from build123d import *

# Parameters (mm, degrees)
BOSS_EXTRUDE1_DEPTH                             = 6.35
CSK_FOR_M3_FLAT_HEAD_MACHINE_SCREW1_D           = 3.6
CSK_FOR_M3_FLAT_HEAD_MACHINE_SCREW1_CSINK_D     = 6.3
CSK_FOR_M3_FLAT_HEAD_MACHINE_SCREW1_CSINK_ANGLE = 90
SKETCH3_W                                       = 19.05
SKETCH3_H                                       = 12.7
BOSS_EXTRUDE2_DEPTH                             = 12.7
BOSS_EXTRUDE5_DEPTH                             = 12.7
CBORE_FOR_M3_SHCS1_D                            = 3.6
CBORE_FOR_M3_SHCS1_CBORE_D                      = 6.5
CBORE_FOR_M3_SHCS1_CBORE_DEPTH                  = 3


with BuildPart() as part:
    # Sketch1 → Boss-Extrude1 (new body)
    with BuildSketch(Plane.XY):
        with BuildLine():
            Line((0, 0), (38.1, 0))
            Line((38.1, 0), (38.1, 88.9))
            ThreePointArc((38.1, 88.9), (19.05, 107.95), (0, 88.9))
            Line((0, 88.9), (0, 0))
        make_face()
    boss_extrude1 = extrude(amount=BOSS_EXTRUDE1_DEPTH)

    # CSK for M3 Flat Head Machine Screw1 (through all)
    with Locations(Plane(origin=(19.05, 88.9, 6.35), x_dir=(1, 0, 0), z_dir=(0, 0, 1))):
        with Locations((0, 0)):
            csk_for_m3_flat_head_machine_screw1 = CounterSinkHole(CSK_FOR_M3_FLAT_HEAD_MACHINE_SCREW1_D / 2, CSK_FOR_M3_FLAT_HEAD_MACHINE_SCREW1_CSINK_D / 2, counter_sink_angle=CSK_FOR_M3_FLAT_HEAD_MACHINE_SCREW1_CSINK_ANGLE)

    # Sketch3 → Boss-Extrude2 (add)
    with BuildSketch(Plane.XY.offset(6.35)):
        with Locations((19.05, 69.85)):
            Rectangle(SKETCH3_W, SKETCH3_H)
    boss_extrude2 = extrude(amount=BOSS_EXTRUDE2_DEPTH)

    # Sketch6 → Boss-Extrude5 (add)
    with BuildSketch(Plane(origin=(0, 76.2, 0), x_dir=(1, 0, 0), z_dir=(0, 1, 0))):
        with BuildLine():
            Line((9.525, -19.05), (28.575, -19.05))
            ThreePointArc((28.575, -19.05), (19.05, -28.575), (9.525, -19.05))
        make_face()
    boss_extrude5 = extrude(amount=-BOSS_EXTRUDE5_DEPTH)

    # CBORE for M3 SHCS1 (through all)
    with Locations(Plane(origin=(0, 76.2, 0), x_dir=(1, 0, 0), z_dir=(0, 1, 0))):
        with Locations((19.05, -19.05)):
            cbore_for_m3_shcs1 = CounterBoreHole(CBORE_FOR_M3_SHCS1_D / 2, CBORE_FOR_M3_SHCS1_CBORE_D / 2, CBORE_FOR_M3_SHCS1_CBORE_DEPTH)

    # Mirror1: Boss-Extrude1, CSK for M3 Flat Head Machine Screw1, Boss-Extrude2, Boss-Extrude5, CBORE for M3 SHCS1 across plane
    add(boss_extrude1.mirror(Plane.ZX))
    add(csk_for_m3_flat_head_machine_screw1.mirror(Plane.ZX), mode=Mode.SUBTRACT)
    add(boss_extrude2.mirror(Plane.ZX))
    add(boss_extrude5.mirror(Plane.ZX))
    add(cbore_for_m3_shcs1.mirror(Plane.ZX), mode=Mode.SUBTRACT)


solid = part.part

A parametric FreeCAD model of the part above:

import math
import FreeCAD as App
import Part
import Sketcher

V = App.Vector
Q = App.Units.Quantity


def add_polygon(sketch, points):
    """Adds a closed chain of lines whose ends are joined by coincident constraints."""
    first, n = sketch.GeometryCount, len(points)
    for a, b in zip(points, points[1:] + points[:1]):
        sketch.addGeometry(Part.LineSegment(App.Vector(*a, 0), App.Vector(*b, 0)), False)
    for i in range(n):
        sketch.addConstraint(Sketcher.Constraint("Coincident", first + i, 2, first + (i + 1) % n, 1))

doc = App.newDocument("Part")
body = doc.addObject("PartDesign::Body", "Body")

sketch1 = body.newObject("Sketcher::SketchObject", "Sketch")
sketch1.AttachmentSupport = (doc.getObject("XY_Plane"), [""])
sketch1.MapMode = "FlatFace"
sketch1.addGeometry([
    Part.LineSegment(V(0, 0, 0), V(38.1, 0, 0)),
    Part.LineSegment(V(38.1, 0, 0), V(38.1, 88.9, 0)),
    Part.ArcOfCircle(Part.Circle(V(19.05, 88.9, 0), V(0, 0, 1), 19.05), math.radians(0), math.radians(180)),
    Part.LineSegment(V(0, 88.9, 0), V(0, 0, 0)),
], False)
sketch1.addConstraint([
    Sketcher.Constraint("Coincident", 0, 2, 1, 1),
    Sketcher.Constraint("Tangent", 1, 2, 2, 1),
    Sketcher.Constraint("Tangent", 2, 2, 3, 1),
    Sketcher.Constraint("Coincident", 3, 2, 0, 1),
    Sketcher.Constraint("Horizontal", 0),
    Sketcher.Constraint("Vertical", 1),
    Sketcher.Constraint("Vertical", 3),
    Sketcher.Constraint("Coincident", 3, 2, -1, 1),
    Sketcher.Constraint("Radius", 2, Q("0.75 in")),
    Sketcher.Constraint("DistanceY", 1, 1, 1, 2, Q("3.5 in")),
])
pad1 = body.newObject("PartDesign::Pad", "Pad")
pad1.Profile = sketch1
pad1.Length = Q("0.25 in")

sketch2 = body.newObject("Sketcher::SketchObject", "Sketch001")
sketch2.AttachmentSupport = (doc.getObject("XY_Plane"), [""])
sketch2.MapMode = "FlatFace"
sketch2.AttachmentOffset = App.Placement(V(0, 0, 0.25 * 25.4), App.Rotation())
sketch2.addGeometry(Part.Circle(V(19.05, 88.9, 0), V(0, 0, 1), 1.8), False)
sketch2.addConstraint([
    Sketcher.Constraint("DistanceY", -1, 1, 0, 3, Q("3.5 in")),
    Sketcher.Constraint("Diameter", 0, Q("3.6 mm")),
    Sketcher.Constraint("DistanceX", -1, 1, 0, 3, Q("0.75 in")),
])
doc.recompute()
hole = body.newObject("PartDesign::Hole", "Hole")
hole.Profile = sketch2
hole.ThreadType = "None"
hole.Diameter = 3.6
hole.DepthType = "ThroughAll"
hole.HoleCutType = "Countersink"
hole.HoleCutDiameter = 6.3
hole.HoleCutCountersinkAngle = 90

sketch3 = body.newObject("Sketcher::SketchObject", "Sketch002")
sketch3.AttachmentSupport = (doc.getObject("XY_Plane"), [""])
sketch3.MapMode = "FlatFace"
sketch3.AttachmentOffset = App.Placement(V(0, 0, 0.25 * 25.4), App.Rotation())
add_polygon(sketch3, [(9.525, 76.2), (9.525, 63.5), (28.575, 63.5), (28.575, 76.2)])
sketch3.addConstraint([
    Sketcher.Constraint("Vertical", 0),
    Sketcher.Constraint("Horizontal", 1),
    Sketcher.Constraint("Vertical", 2),
    Sketcher.Constraint("Horizontal", 3),
    Sketcher.Constraint("DistanceY", 0, 2, 0, 1, Q("0.5 in")),
    Sketcher.Constraint("DistanceY", -1, 1, 2, 2, Q("3 in")),
    Sketcher.Constraint("DistanceX", 1, 1, 1, 2, Q("0.75 in")),
    Sketcher.Constraint("DistanceX", -1, 1, 0, 2, Q("0.375 in")),
])
pad2 = body.newObject("PartDesign::Pad", "Pad001")
pad2.Profile = sketch3
pad2.Length = Q("0.5 in")

sketch4 = body.newObject("Sketcher::SketchObject", "Sketch003")
sketch4.AttachmentSupport = (doc.getObject("XZ_Plane"), [""])
sketch4.MapMode = "FlatFace"
sketch4.AttachmentOffset = App.Placement(V(0, 0, -3 * 25.4), App.Rotation())
sketch4.addGeometry([
    Part.LineSegment(V(28.575, 19.05, 0), V(9.525, 19.05, 0)),
    Part.ArcOfCircle(Part.Circle(V(19.05, 19.05, 0), V(0, 0, 1), 9.525), math.radians(0), math.radians(180)),
], False)
sketch4.addConstraint([
    Sketcher.Constraint("Coincident", 0, 1, 1, 1),
    Sketcher.Constraint("Coincident", 1, 2, 0, 2),
    Sketcher.Constraint("Horizontal", 0),
    Sketcher.Constraint("Horizontal", 1, 3, 0, 1),
    Sketcher.Constraint("Radius", 1, Q("0.375 in")),
    Sketcher.Constraint("DistanceX", -1, 1, 1, 3, Q("0.75 in")),
    Sketcher.Constraint("DistanceY", -1, 1, 1, 3, Q("0.75 in")),
])
pad3 = body.newObject("PartDesign::Pad", "Pad002")
pad3.Profile = sketch4
pad3.Length = Q("0.5 in")

sketch5 = body.newObject("Sketcher::SketchObject", "Sketch004")
sketch5.AttachmentSupport = (doc.getObject("XZ_Plane"), [""])
sketch5.MapMode = "FlatFace"
sketch5.AttachmentOffset = App.Placement(V(0, 0, -3 * 25.4), App.Rotation())
sketch5.addGeometry(Part.Circle(V(19.05, 19.05, 0), V(0, 0, 1), 1.8), False)
sketch5.addConstraint([
    Sketcher.Constraint("Diameter", 0, Q("3.6 mm")),
    Sketcher.Constraint("DistanceX", -1, 1, 0, 3, Q("0.75 in")),
    Sketcher.Constraint("DistanceY", -1, 1, 0, 3, Q("0.75 in")),
])
doc.recompute()
hole2 = body.newObject("PartDesign::Hole", "Hole001")
hole2.Profile = sketch5
hole2.ThreadType = "None"
hole2.Diameter = 3.6
hole2.DepthType = "ThroughAll"
hole2.HoleCutType = "Counterbore"
hole2.HoleCutDiameter = 6.5
hole2.HoleCutDepth = 3
hole2.Reversed = True
doc.recompute()

mirrored = body.newObject("PartDesign::Mirrored", "Mirrored")
mirrored.Originals = [pad1, hole, pad2, pad3, hole2]
mirrored.MirrorPlane = (doc.getObject("XZ_Plane"), [""])
body.Tip = mirrored

doc.recompute()
